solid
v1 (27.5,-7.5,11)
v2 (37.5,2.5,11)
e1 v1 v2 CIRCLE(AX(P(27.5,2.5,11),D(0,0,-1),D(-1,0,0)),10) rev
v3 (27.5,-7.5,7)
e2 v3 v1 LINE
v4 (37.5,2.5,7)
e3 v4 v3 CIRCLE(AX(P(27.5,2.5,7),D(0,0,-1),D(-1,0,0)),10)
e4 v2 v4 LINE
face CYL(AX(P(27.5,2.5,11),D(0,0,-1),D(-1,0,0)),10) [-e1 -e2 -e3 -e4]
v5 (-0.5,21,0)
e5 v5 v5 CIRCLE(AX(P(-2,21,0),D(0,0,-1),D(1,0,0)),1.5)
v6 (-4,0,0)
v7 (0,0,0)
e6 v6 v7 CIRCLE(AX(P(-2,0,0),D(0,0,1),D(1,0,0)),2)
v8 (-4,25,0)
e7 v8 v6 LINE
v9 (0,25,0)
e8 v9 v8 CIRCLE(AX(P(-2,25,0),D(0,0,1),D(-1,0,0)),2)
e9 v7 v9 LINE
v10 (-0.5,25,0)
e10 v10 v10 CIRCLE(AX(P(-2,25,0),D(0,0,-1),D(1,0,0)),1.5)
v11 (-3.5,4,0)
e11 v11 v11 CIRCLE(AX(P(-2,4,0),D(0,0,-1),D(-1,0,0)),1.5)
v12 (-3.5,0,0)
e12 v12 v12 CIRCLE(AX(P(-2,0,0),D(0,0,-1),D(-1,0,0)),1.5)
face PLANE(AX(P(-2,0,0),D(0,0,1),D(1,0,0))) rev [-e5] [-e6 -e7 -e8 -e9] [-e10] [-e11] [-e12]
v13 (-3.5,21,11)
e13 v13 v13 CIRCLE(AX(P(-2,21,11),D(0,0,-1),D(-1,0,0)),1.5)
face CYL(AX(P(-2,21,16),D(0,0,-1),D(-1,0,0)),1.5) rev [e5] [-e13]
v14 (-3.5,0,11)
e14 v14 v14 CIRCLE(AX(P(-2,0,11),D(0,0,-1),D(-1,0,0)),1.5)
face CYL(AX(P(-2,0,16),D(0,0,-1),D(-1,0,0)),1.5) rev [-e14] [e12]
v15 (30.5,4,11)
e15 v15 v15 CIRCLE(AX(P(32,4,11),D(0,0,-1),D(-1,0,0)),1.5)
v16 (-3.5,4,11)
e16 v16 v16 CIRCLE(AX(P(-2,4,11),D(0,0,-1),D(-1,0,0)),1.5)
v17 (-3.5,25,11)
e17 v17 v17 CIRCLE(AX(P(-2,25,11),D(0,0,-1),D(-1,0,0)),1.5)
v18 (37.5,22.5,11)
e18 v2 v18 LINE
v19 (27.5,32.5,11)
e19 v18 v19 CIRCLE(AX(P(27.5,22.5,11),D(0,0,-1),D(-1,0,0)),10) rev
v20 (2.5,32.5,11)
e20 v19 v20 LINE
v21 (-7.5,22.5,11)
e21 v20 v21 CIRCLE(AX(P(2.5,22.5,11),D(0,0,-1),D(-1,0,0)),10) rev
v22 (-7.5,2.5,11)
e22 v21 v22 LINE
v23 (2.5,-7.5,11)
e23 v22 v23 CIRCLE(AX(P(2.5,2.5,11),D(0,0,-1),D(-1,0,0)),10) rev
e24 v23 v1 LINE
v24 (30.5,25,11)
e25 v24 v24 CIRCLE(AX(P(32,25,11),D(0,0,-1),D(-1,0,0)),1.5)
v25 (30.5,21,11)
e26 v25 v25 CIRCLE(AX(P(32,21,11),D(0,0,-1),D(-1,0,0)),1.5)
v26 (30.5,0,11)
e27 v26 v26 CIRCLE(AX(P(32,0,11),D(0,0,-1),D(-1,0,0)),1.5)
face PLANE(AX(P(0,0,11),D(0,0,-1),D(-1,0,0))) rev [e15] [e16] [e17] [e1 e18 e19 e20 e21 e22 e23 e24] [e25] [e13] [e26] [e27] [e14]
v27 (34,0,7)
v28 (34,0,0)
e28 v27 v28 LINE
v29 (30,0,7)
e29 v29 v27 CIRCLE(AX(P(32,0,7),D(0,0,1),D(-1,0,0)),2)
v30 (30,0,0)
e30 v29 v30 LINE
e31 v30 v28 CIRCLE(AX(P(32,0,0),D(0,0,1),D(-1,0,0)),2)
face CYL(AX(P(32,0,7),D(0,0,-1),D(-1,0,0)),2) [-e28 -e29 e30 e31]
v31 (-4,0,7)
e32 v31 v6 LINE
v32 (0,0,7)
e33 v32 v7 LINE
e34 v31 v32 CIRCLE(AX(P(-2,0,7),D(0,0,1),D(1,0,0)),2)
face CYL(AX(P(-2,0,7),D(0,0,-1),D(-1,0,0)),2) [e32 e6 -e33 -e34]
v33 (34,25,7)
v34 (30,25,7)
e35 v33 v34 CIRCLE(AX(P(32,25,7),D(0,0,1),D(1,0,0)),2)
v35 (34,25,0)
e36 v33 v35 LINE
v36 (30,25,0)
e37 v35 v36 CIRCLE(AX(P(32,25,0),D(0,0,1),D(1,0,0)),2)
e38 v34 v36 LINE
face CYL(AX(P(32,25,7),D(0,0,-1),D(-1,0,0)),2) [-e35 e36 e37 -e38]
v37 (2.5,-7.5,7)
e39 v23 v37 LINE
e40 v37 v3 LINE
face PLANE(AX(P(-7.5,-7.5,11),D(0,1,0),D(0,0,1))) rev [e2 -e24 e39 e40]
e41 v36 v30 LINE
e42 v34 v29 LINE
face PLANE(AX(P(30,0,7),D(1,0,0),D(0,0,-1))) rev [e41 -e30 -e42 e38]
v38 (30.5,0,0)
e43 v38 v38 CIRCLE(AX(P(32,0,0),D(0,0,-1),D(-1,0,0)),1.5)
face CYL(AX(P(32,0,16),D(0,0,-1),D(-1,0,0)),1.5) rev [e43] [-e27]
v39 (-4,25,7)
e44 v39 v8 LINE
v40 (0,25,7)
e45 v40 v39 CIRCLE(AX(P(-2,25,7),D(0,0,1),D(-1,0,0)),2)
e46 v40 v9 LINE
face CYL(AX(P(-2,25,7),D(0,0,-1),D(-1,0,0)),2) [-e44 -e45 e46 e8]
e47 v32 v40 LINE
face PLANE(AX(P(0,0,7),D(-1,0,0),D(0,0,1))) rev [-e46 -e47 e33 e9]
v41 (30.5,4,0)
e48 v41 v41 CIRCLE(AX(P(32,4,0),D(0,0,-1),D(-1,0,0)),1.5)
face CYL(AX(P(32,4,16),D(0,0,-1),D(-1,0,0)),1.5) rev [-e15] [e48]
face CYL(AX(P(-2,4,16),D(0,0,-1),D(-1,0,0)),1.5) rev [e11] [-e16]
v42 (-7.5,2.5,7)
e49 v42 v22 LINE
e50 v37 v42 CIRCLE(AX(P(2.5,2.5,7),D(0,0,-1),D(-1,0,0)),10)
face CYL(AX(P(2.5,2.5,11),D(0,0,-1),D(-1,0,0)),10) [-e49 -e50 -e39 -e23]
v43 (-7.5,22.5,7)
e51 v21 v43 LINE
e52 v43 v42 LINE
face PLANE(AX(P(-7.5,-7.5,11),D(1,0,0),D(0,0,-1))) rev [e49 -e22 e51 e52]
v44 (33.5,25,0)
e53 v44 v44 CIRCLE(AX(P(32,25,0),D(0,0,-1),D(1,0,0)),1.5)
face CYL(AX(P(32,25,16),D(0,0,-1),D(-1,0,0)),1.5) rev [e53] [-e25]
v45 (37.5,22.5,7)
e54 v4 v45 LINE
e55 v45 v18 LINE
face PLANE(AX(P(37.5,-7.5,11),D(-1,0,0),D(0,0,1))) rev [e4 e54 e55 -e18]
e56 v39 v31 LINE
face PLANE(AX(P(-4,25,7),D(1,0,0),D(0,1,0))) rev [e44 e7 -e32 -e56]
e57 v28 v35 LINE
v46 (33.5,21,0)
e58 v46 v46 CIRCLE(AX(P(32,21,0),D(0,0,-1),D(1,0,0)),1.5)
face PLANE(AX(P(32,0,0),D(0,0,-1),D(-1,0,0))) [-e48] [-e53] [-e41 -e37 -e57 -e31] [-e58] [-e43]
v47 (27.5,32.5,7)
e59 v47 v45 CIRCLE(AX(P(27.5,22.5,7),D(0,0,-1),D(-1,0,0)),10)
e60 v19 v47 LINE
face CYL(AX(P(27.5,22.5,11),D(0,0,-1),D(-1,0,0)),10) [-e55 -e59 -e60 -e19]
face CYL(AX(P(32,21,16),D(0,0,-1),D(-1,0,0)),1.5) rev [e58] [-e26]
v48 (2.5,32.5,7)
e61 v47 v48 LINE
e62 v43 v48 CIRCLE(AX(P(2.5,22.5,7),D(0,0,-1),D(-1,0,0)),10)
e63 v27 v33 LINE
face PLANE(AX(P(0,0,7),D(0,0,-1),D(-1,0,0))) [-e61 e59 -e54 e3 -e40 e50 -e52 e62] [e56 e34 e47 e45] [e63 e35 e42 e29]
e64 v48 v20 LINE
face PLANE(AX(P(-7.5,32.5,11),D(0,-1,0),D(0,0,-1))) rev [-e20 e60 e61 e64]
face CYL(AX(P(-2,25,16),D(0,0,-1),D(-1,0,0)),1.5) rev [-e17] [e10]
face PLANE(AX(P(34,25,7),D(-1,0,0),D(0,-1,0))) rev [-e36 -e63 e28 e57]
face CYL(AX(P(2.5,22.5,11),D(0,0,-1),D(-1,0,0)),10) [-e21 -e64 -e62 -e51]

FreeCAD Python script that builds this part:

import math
import FreeCAD as App
import Part
import Sketcher

V = App.Vector


def edges_at(feature, points):
    """Names of the edges that pass closest to the given points."""
    edges = feature.Shape.Edges
    near = lambda p: min(range(len(edges)), key=lambda i: edges[i].distToShape(Part.Vertex(*p))[0])
    return sorted({f"Edge{near(p) + 1}" for p in points})


def add_polygon(sketch, points):
    """Adds a closed chain of lines whose ends are joined by coincident constraints."""
    first, n = sketch.GeometryCount, len(points)
    for a, b in zip(points, points[1:] + points[:1]):
        sketch.addGeometry(Part.LineSegment(App.Vector(*a, 0), App.Vector(*b, 0)), False)
    for i in range(n):
        sketch.addConstraint(Sketcher.Constraint("Coincident", first + i, 2, first + (i + 1) % n, 1))

doc = App.newDocument("Part")
body = doc.addObject("PartDesign::Body", "Body")

sketch1 = body.newObject("Sketcher::SketchObject", "Sketch")
sketch1.AttachmentSupport = (doc.getObject("XY_Plane"), [""])
sketch1.MapMode = "FlatFace"
sketch1.addGeometry([
    Part.LineSegment(V(0, 0, 0), V(0, 25, 0)),
    Part.ArcOfCircle(Part.Circle(V(-2, 25, 0), V(0, 0, 1), 2), math.radians(0), math.radians(180)),
    Part.LineSegment(V(-4, 25, 0), V(-4, 0, 0)),
    Part.ArcOfCircle(Part.Circle(V(-2, 0, 0), V(0, 0, 1), 2), math.radians(180), math.radians(360)),
], False)
sketch1.addConstraint([
    Sketcher.Constraint("Tangent", 0, 2, 1, 1),
    Sketcher.Constraint("Tangent", 1, 2, 2, 1),
    Sketcher.Constraint("Tangent", 2, 2, 3, 1),
    Sketcher.Constraint("Tangent", 3, 2, 0, 1),
    Sketcher.Constraint("Vertical", 0),
    Sketcher.Constraint("Vertical", 2),
    Sketcher.Constraint("Coincident", 3, 2, -1, 1),
    Sketcher.Constraint("Radius", 1, 2.0),
    Sketcher.Constraint("DistanceY", 0, 1, 0, 2, 25.0),
])
pad1 = body.newObject("PartDesign::Pad", "Pad")
pad1.Profile = sketch1
pad1.Length = 7
body2 = doc.addObject("PartDesign::Body", "Body001")

sketch2 = body2.newObject("Sketcher::SketchObject", "Sketch001")
sketch2.AttachmentSupport = (doc.getObject("XY_Plane001"), [""])
sketch2.MapMode = "FlatFace"
sketch2.addGeometry([
    Part.LineSegment(V(30, 25, 0), V(30, 0, 0)),
    Part.ArcOfCircle(Part.Circle(V(32, 0, 0), V(0, 0, 1), 2), math.radians(180), math.radians(360)),
    Part.LineSegment(V(34, 0, 0), V(34, 25, 0)),
    Part.ArcOfCircle(Part.Circle(V(32, 25, 0), V(0, 0, 1), 2), math.radians(0), math.radians(180)),
], False)
sketch2.addConstraint([
    Sketcher.Constraint("Tangent", 0, 2, 1, 1),
    Sketcher.Constraint("Tangent", 1, 2, 2, 1),
    Sketcher.Constraint("Tangent", 2, 2, 3, 1),
    Sketcher.Constraint("Tangent", 3, 2, 0, 1),
    Sketcher.Constraint("Vertical", 0),
    Sketcher.Constraint("Vertical", 2),
    Sketcher.Constraint("PointOnObject", 1, 3, -1),
    Sketcher.Constraint("Radius", 1, 2.0),
    Sketcher.Constraint("DistanceY", 0, 2, 0, 1, 25.0),
    Sketcher.Constraint("DistanceX", -1, 1, 1, 3, 32.0),
])
pad2 = body2.newObject("PartDesign::Pad", "Pad001")
pad2.Profile = sketch2
pad2.Length = 7
body.AllowCompound = True
doc.recompute()

boolean = body.newObject("PartDesign::Boolean", "Boolean")
boolean.Type = "Fuse"
boolean.addObjects([body2])

sketch3 = body.newObject("Sketcher::SketchObject", "Sketch002")
sketch3.AttachmentSupport = (doc.getObject("XY_Plane"), [""])
sketch3.MapMode = "FlatFace"
sketch3.AttachmentOffset = App.Placement(V(0, 0, 7), App.Rotation())
add_polygon(sketch3, [(-8, 32), (-8, -8), (38, -8), (38, 32)])
sketch3.addConstraint([
    Sketcher.Constraint("Vertical", 0),
    Sketcher.Constraint("Horizontal", 1),
    Sketcher.Constraint("Vertical", 2),
    Sketcher.Constraint("Horizontal", 3),
    Sketcher.Constraint("DistanceX", 1, 1, 1, 2, 45.0),
    Sketcher.Constraint("DistanceY", 0, 2, 0, 1, 40.0),
    Sketcher.Constraint("DistanceX", 0, 2, -1, 1, 7.5),
    Sketcher.Constraint("DistanceY", 0, 2, -1, 1, 7.5),
])
pad3 = body.newObject("PartDesign::Pad", "Pad002")
pad3.Profile = sketch3
pad3.Length = 4
doc.recompute()

fillet = body.newObject("PartDesign::Fillet", "Fillet")
fillet.Base = (pad3, edges_at(pad3, [
    (37.5, -7.5, 9),
    (37.5, 32.5, 9),
    (-7.5, 32.5, 9),
    (-7.5, -7.5, 9),
]))
fillet.Radius = 10

sketch4 = body.newObject("Sketcher::SketchObject", "Sketch003")
sketch4.AttachmentSupport = (doc.getObject("XY_Plane"), [""])
sketch4.MapMode = "FlatFace"
sketch4.addGeometry([
    Part.Circle(V(32, 0, 0), V(0, 0, 1), 1.5),
    Part.Circle(V(32, 4, 0), V(0, 0, 1), 1.5),
    Part.Circle(V(-2, 0, 0), V(0, 0, 1), 1.5),
    Part.Circle(V(-2, 4, 0), V(0, 0, 1), 1.5),
    Part.Circle(V(32, 25, 0), V(0, 0, 1), 1.5),
    Part.Circle(V(32, 21, 0), V(0, 0, 1), 1.5),
    Part.Circle(V(-2, 25, 0), V(0, 0, 1), 1.5),
    Part.Circle(V(-2, 21, 0), V(0, 0, 1), 1.5),
], False)
sketch4.addConstraint([
    Sketcher.Constraint("Equal", 0, 1),
    Sketcher.Constraint("Equal", 1, 2),
    Sketcher.Constraint("Equal", 2, 3),
    Sketcher.Constraint("Equal", 3, 4),
    Sketcher.Constraint("Equal", 4, 5),
    Sketcher.Constraint("Equal", 5, 6),
    Sketcher.Constraint("Equal", 6, 7),
    Sketcher.Constraint("PointOnObject", 0, 3, -1),
    Sketcher.Constraint("PointOnObject", 2, 3, -1),
    Sketcher.Constraint("Horizontal", 1, 3, 3, 3),
    Sketcher.Constraint("Horizontal", 4, 3, 6, 3),
    Sketcher.Constraint("Horizontal", 5, 3, 7, 3),
    Sketcher.Constraint("Vertical", 0, 3, 1, 3),
    Sketcher.Constraint("Vertical", 2, 3, 3, 3),
    Sketcher.Constraint("Vertical", 1, 3, 4, 3),
    Sketcher.Constraint("Vertical", 4, 3, 5, 3),
    Sketcher.Constraint("Vertical", 3, 3, 6, 3),
    Sketcher.Constraint("Vertical", 6, 3, 7, 3),
    Sketcher.Constraint("Diameter", 0, 3.0),
    Sketcher.Constraint("DistanceX", -1, 1, 0, 3, 32.0),
    Sketcher.Constraint("DistanceY", -1, 1, 1, 3, 4.0),
    Sketcher.Constraint("DistanceX", 2, 3, -1, 1, 2.0),
    Sketcher.Constraint("DistanceY", -1, 1, 4, 3, 25.0),
    Sketcher.Constraint("DistanceY", -1, 1, 5, 3, 21.0),
])
pocket1 = body.newObject("PartDesign::Pocket", "Pocket")
pocket1.Profile = sketch4
pocket1.Length = 16
pocket1.Reversed = True

doc.recompute()
